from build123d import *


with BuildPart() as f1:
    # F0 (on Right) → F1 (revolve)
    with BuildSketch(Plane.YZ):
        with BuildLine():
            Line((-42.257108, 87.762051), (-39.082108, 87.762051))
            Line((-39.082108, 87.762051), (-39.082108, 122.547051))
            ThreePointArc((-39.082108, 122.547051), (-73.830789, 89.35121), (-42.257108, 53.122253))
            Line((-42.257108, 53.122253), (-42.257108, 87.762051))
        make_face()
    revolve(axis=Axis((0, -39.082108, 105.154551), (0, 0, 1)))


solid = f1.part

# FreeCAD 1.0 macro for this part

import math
import FreeCAD as App
import Part
import Sketcher
from FreeCAD import Vector
Q = App.Units.Quantity

doc = App.newDocument("Part")
body = doc.addObject("PartDesign::Body", "Body")

sketch1 = body.newObject("Sketcher::SketchObject", "Sketch")
sketch1.AttachmentSupport = (doc.getObject("YZ_Plane"), [""])
sketch1.MapMode = "FlatFace"
sketch1.addGeometry(Part.LineSegment(Vector(-42.3, 87.8, 0), Vector(-39.1, 87.8, 0)), False)
sketch1.addGeometry(Part.LineSegment(Vector(-39.1, 87.8, 0), Vector(-39.1, 122.5, 0)), False)
sketch1.addGeometry(Part.ArcOfCircle(Part.Circle(Vector(-39.1, 87.8, 0), Vector(0, 0, 1), 34.8), math.radians(90), math.radians(265)), False)
sketch1.addGeometry(Part.LineSegment(Vector(-42.3, 53.1, 0), Vector(-42.3, 87.8, 0)), False)
sketch1.addGeometry(Part.LineSegment(Vector(-39.1, 53.1, 0), Vector(-39.1, 122.5, 0)), True)
sketch1.addConstraint(Sketcher.Constraint("Coincident", 0, 2, 1, 1))
sketch1.addConstraint(Sketcher.Constraint("Coincident", 1, 2, 2, 1))
sketch1.addConstraint(Sketcher.Constraint("Coincident", 2, 2, 3, 1))
sketch1.addConstraint(Sketcher.Constraint("Coincident", 3, 2, 0, 1))
sketch1.addConstraint(Sketcher.Constraint("Horizontal", 0))
sketch1.addConstraint(Sketcher.Constraint("Vertical", 1))
sketch1.addConstraint(Sketcher.Constraint("Vertical", 3))
sketch1.addConstraint(Sketcher.Constraint("Vertical", 4))
sketch1.addConstraint(Sketcher.Constraint("Coincident", 0, 2, 2, 3))
sketch1.addConstraint(Sketcher.Constraint("Coincident", 4, 2, 1, 2))
sketch1.addConstraint(Sketcher.Constraint("Horizontal", 2, 2, 4, 1))
sketch1.addConstraint(Sketcher.Constraint("DistanceX", 0, 1, 0, 2, Q("0.125 in")))
sketch1.addConstraint(Sketcher.Constraint("Radius", 2, Q("34.785 mm")))
sketch1.addConstraint(Sketcher.Constraint("DistanceX", 2, 3, -1, 1, Q("39.082108 mm")))
sketch1.addConstraint(Sketcher.Constraint("DistanceY", -1, 1, 2, 3, Q("87.762051 mm")))
revolution = body.newObject("PartDesign::Revolution", "Revolution")
revolution.Profile = sketch1
revolution.ReferenceAxis = (sketch1, ["Axis0"])
revolution.Angle = 360

doc.recompute()
